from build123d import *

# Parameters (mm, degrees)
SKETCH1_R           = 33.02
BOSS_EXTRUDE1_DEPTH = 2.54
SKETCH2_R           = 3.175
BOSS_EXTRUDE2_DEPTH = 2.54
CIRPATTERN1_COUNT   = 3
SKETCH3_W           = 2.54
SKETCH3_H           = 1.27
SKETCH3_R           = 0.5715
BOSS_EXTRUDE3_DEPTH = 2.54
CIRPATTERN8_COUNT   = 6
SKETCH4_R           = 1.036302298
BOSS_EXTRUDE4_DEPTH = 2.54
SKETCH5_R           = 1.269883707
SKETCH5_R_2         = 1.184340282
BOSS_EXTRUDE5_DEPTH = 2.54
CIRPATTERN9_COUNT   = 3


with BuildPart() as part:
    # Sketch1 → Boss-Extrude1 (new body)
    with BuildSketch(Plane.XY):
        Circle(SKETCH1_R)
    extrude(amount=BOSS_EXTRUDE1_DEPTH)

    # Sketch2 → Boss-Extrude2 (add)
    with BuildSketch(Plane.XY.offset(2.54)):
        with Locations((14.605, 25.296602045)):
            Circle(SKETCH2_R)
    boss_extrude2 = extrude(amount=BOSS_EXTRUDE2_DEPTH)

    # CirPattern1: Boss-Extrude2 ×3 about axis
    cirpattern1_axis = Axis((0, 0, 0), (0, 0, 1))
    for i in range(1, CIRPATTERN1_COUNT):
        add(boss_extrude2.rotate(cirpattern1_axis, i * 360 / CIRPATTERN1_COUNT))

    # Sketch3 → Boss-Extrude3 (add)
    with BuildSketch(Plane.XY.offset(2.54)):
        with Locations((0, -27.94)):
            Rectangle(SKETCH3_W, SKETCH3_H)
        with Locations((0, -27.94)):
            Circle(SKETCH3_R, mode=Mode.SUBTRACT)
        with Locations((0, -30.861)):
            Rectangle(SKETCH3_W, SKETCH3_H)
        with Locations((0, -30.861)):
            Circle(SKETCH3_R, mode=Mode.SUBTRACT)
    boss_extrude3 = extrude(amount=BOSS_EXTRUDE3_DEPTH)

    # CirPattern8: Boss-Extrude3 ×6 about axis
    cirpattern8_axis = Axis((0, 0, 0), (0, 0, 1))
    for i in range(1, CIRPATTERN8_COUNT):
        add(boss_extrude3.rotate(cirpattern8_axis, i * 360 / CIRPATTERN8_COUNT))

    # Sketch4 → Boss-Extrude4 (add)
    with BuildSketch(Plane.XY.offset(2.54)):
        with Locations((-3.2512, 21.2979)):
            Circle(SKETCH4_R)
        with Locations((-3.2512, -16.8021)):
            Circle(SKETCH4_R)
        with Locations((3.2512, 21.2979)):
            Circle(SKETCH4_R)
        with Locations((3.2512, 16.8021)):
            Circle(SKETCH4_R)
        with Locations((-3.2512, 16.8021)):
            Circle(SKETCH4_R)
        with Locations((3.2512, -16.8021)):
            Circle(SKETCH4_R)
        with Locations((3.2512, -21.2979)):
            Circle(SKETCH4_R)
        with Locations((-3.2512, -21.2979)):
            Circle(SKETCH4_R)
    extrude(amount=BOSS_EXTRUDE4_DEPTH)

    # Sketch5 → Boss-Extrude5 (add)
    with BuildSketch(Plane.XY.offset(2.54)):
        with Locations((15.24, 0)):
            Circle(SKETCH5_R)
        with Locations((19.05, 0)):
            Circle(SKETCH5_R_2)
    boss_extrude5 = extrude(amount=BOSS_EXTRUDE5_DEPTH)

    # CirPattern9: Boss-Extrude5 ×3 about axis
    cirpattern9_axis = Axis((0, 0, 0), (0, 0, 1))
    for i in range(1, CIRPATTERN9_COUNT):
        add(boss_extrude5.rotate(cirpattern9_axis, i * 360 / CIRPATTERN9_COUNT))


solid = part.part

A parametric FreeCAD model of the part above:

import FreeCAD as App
import Part
import Sketcher
from FreeCAD import Vector
Q = App.Units.Quantity


def add_polygon(sketch, points):
    """Adds a closed chain of lines whose ends are joined by coincident constraints."""
    first, n = sketch.GeometryCount, len(points)
    for a, b in zip(points, points[1:] + points[:1]):
        sketch.addGeometry(Part.LineSegment(App.Vector(*a, 0), App.Vector(*b, 0)), False)
    for i in range(n):
        sketch.addConstraint(Sketcher.Constraint("Coincident", first + i, 2, first + (i + 1) % n, 1))

doc = App.newDocument("Part")
body = doc.addObject("PartDesign::Body", "Body")

# Sketch on XY plane
sketch1 = body.newObject("Sketcher::SketchObject", "Sketch")
sketch1.AttachmentSupport = (doc.getObject("XY_Plane"), [""])
sketch1.MapMode = "FlatFace"
sketch1.addGeometry(Part.Circle(Vector(0, 0, 0), Vector(0, 0, 1), 33.02), False)
sketch1.addConstraint([
    Sketcher.Constraint("Coincident", 0, 3, -1, 1),
    Sketcher.Constraint("Diameter", 0, Q("2.6 in")),
])
pad1 = body.newObject("PartDesign::Pad", "Pad")
pad1.Profile = sketch1
pad1.Length = Q("0.1 in")

# Sketch on XY plane
sketch2 = body.newObject("Sketcher::SketchObject", "Sketch001")
sketch2.AttachmentSupport = (doc.getObject("XY_Plane"), [""])
sketch2.MapMode = "FlatFace"
sketch2.AttachmentOffset = App.Placement(Vector(0, 0, 0.1 * 25.4), App.Rotation())
sketch2.addGeometry(Part.Circle(Vector(14.605, 25.296602, 0), Vector(0, 0, 1), 3.175), False)
sketch2.addConstraint([
    Sketcher.Constraint("Diameter", 0, Q("0.25 in")),
    Sketcher.Constraint("DistanceX", -1, 1, 0, 3, Q("0.575 in")),
    Sketcher.Constraint("DistanceY", -1, 1, 0, 3, 25.296602),
])
pad2 = body.newObject("PartDesign::Pad", "Pad001")
pad2.Profile = sketch2
pad2.Length = Q("0.1 in")
doc.recompute()

polarpattern = body.newObject("PartDesign::PolarPattern", "PolarPattern")
polarpattern.Originals = [pad2]
polarpattern.Axis = (doc.getObject("Z_Axis"), [""])
polarpattern.Angle = 360
polarpattern.Occurrences = 3
body.Tip = polarpattern

# Sketch on XY plane
sketch3 = body.newObject("Sketcher::SketchObject", "Sketch002")
sketch3.AttachmentSupport = (doc.getObject("XY_Plane"), [""])
sketch3.MapMode = "FlatFace"
sketch3.AttachmentOffset = App.Placement(Vector(0, 0, 0.1 * 25.4), App.Rotation())
add_polygon(sketch3, [(-1.27, -27.305), (-1.27, -28.575), (1.27, -28.575), (1.27, -27.305)])  # lines 0-3
sketch3.addGeometry(Part.Circle(Vector(0, -27.94, 0), Vector(0, 0, 1), 0.5715), False)  # 4
add_polygon(sketch3, [(-1.27, -30.226), (-1.27, -31.496), (1.27, -31.496), (1.27, -30.226)])  # lines 5-8
sketch3.addGeometry(Part.Circle(Vector(0, -30.861, 0), Vector(0, 0, 1), 0.5715), False)  # 9
sketch3.addConstraint([
    Sketcher.Constraint("Vertical", 0),
    Sketcher.Constraint("Horizontal", 1),
    Sketcher.Constraint("Vertical", 2),
    Sketcher.Constraint("Horizontal", 3),
    Sketcher.Constraint("Vertical", 5),
    Sketcher.Constraint("Horizontal", 6),
    Sketcher.Constraint("Vertical", 7),
    Sketcher.Constraint("Horizontal", 8),
    Sketcher.Constraint("Equal", 4, 9),
    Sketcher.Constraint("PointOnObject", 4, 3, -2),
    Sketcher.Constraint("PointOnObject", 9, 3, -2),
    Sketcher.Constraint("Vertical", 3, 2, 5, 2),
    Sketcher.Constraint("Vertical", 2, 2, 6, 2),
    Sketcher.Constraint("Equal", 2, 5),
    Sketcher.Constraint("Diameter", 4, Q("0.045 in")),
    Sketcher.Constraint("DistanceX", 1, 1, 1, 2, Q("0.1 in")),
    Sketcher.Constraint("DistanceY", 0, 2, 0, 1, Q("0.05 in")),
    Sketcher.Constraint("DistanceY", 4, 3, -1, 1, Q("1.1 in")),
    Sketcher.Constraint("DistanceX", 0, 2, -1, 1, Q("0.05 in")),
    Sketcher.Constraint("DistanceY", 5, 2, -1, 1, Q("1.24 in")),
    Sketcher.Constraint("DistanceY", 9, 3, 0, 2, Q("0.09 in")),
    Sketcher.Constraint("DistanceY", 9, 3, -1, 1, Q("1.215 in")),
])
pad3 = body.newObject("PartDesign::Pad", "Pad002")
pad3.Profile = sketch3
pad3.Length = Q("0.1 in")
doc.recompute()

polarpattern2 = body.newObject("PartDesign::PolarPattern", "PolarPattern001")
polarpattern2.Originals = [pad3]
polarpattern2.Axis = (doc.getObject("Z_Axis"), [""])
polarpattern2.Angle = 360
polarpattern2.Occurrences = 6
body.Tip = polarpattern2

# Sketch on XY plane
sketch4 = body.newObject("Sketcher::SketchObject", "Sketch003")
sketch4.AttachmentSupport = (doc.getObject("XY_Plane"), [""])
sketch4.MapMode = "FlatFace"
sketch4.AttachmentOffset = App.Placement(Vector(0, 0, 0.1 * 25.4), App.Rotation())
sketch4.addGeometry([
    Part.Circle(Vector(-3.2512, 21.2979, 0), Vector(0, 0, 1), 1.036302),  # 0
    Part.Circle(Vector(-3.2512, -16.8021, 0), Vector(0, 0, 1), 1.036302),  # 1
    Part.Circle(Vector(3.2512, 21.2979, 0), Vector(0, 0, 1), 1.036302),  # 2
    Part.Circle(Vector(3.2512, 16.8021, 0), Vector(0, 0, 1), 1.036302),  # 3
    Part.Circle(Vector(-3.2512, 16.8021, 0), Vector(0, 0, 1), 1.036302),  # 4
    Part.Circle(Vector(3.2512, -16.8021, 0), Vector(0, 0, 1), 1.036302),  # 5
    Part.Circle(Vector(3.2512, -21.2979, 0), Vector(0, 0, 1), 1.036302),  # 6
    Part.Circle(Vector(-3.2512, -21.2979, 0), Vector(0, 0, 1), 1.036302),  # 7
], False)
sketch4.addConstraint([
    Sketcher.Constraint("Equal", 0, 1),
    Sketcher.Constraint("Equal", 1, 2),
    Sketcher.Constraint("Equal", 2, 3),
    Sketcher.Constraint("Equal", 3, 4),
    Sketcher.Constraint("Equal", 4, 5),
    Sketcher.Constraint("Equal", 5, 6),
    Sketcher.Constraint("Equal", 6, 7),
    Sketcher.Constraint("Symmetric", 1, 3, 3, 3, -1, 1),
    Sketcher.Constraint("Symmetric", 4, 3, 5, 3, -1, 1),
    Sketcher.Constraint("Symmetric", 0, 3, 6, 3, -1, 1),
    Sketcher.Constraint("Symmetric", 2, 3, 7, 3, -1, 1),
    Sketcher.Constraint("Symmetric", 0, 3, 2, 3, -2),
    Sketcher.Constraint("Symmetric", 3, 3, 4, 3, -2),
    Sketcher.Constraint("Vertical", 0, 3, 1, 3),
    Sketcher.Constraint("DistanceY", 1, 3, 0, 3, Q("1.5 in")),
    Sketcher.Constraint("DistanceX", 0, 3, -1, 1, Q("0.128 in")),
    Sketcher.Constraint("DistanceY", 3, 3, 2, 3, Q("0.177 in")),
    Sketcher.Constraint("Diameter", 0, 2.072605),
])
pad4 = body.newObject("PartDesign::Pad", "Pad003")
pad4.Profile = sketch4
pad4.Length = Q("0.1 in")

# Sketch on XY plane
sketch5 = body.newObject("Sketcher::SketchObject", "Sketch004")
sketch5.AttachmentSupport = (doc.getObject("XY_Plane"), [""])
sketch5.MapMode = "FlatFace"
sketch5.AttachmentOffset = App.Placement(Vector(0, 0, 0.1 * 25.4), App.Rotation())
sketch5.addGeometry([
    Part.Circle(Vector(15.24, 0, 0), Vector(0, 0, 1), 1.269884),
    Part.Circle(Vector(19.05, 0, 0), Vector(0, 0, 1), 1.18434),
], False)
sketch5.addConstraint([
    Sketcher.Constraint("PointOnObject", 0, 3, -1),
    Sketcher.Constraint("PointOnObject", 1, 3, -1),
    Sketcher.Constraint("DistanceX", -1, 1, 0, 3, Q("0.6 in")),
    Sketcher.Constraint("DistanceX", -1, 1, 1, 3, Q("0.75 in")),
    Sketcher.Constraint("Diameter", 1, 2.368681),
    Sketcher.Constraint("Diameter", 0, 2.539767),
])
pad5 = body.newObject("PartDesign::Pad", "Pad004")
pad5.Profile = sketch5
pad5.Length = Q("0.1 in")
doc.recompute()

polarpattern3 = body.newObject("PartDesign::PolarPattern", "PolarPattern002")
polarpattern3.Originals = [pad5]
polarpattern3.Axis = (doc.getObject("Z_Axis"), [""])
polarpattern3.Angle = 360
polarpattern3.Occurrences = 3
body.Tip = polarpattern3

doc.recompute()
